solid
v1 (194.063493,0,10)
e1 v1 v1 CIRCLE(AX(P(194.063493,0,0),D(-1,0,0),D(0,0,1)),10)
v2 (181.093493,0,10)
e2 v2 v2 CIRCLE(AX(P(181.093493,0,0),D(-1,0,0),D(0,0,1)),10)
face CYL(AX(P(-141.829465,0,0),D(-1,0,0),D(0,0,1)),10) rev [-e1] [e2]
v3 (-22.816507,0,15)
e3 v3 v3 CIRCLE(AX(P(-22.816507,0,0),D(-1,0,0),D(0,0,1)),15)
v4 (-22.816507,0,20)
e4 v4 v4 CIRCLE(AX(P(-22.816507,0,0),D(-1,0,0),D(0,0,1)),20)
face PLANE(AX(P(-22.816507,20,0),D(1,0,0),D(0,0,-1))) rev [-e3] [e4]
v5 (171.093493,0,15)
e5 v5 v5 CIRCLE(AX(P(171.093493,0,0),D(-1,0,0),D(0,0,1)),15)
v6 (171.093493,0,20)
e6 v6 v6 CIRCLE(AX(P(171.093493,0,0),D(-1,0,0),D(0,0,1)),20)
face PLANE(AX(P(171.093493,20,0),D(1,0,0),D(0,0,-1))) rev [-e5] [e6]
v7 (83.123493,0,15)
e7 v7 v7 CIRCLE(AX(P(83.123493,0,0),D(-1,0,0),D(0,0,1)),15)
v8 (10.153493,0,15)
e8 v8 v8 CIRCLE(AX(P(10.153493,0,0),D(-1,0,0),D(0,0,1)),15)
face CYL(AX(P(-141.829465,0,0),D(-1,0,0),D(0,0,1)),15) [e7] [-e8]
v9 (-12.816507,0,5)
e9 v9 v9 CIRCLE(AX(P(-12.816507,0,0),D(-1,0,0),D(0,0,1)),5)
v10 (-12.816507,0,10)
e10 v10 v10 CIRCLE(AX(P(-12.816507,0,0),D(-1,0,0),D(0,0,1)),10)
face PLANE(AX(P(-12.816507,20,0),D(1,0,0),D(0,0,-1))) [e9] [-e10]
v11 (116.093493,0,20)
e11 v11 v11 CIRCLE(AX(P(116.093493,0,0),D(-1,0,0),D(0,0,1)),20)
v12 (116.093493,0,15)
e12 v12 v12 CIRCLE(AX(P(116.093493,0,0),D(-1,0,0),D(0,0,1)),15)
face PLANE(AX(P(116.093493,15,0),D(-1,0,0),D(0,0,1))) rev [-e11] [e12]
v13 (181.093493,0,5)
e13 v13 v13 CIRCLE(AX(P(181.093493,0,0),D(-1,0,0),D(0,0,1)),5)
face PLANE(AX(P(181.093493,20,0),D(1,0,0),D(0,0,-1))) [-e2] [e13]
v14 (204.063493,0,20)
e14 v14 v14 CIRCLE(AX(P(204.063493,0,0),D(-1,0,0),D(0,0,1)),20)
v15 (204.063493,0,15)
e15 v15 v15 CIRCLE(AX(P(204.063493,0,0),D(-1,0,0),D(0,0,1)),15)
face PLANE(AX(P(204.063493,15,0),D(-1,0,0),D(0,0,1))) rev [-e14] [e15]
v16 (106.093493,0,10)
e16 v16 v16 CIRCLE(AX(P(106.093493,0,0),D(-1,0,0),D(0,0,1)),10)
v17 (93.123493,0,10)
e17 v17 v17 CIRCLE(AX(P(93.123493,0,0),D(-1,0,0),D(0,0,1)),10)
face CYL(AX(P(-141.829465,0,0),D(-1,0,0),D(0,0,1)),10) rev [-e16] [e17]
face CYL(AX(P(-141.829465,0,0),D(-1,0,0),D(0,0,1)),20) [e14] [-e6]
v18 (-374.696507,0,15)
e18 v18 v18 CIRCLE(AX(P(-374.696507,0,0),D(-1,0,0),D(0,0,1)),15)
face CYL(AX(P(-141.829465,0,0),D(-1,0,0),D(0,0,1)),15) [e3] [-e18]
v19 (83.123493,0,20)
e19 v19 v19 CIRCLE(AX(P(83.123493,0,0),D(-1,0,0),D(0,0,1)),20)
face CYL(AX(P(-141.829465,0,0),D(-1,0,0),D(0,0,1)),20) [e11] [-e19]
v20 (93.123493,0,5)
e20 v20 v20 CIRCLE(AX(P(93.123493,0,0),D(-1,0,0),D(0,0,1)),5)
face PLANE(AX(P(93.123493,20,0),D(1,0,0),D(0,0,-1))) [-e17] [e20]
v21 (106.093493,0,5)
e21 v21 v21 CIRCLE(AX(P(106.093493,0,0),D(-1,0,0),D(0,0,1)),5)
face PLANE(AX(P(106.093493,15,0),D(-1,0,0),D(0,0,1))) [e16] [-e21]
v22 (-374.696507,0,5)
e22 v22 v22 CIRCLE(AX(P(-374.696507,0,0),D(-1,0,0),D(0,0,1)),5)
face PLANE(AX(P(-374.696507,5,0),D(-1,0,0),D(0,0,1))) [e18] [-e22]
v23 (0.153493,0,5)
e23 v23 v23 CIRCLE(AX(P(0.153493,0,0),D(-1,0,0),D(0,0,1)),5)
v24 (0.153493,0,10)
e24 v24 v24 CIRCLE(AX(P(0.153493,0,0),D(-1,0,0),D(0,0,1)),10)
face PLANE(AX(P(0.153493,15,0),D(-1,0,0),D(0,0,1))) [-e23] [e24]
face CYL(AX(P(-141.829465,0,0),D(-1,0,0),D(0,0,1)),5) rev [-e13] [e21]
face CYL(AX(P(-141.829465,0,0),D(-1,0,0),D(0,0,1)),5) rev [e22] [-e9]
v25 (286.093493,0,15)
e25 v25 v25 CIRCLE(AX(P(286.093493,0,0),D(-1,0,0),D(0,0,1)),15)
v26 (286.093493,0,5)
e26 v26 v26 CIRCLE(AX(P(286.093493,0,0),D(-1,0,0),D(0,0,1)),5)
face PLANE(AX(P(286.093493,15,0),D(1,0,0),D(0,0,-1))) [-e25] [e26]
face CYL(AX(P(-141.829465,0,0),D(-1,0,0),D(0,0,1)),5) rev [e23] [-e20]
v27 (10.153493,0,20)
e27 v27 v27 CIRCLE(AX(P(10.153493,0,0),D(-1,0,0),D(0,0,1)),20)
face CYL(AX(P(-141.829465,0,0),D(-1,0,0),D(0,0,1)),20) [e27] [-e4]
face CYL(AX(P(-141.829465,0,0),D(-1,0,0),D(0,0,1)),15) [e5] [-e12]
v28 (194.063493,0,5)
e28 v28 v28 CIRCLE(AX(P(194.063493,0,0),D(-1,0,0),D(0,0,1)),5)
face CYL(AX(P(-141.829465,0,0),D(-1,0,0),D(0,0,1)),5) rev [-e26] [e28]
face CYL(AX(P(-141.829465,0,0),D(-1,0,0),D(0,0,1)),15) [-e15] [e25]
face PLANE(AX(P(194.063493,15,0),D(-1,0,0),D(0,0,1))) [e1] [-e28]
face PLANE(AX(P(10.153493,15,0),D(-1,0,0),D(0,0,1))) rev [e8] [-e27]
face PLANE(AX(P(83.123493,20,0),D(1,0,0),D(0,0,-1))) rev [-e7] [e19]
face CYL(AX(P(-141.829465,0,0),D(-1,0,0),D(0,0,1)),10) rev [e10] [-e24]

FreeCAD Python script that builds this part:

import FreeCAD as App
import Part
import Sketcher

doc = App.newDocument("Part")
body = doc.addObject("PartDesign::Body", "Body")

# Sketch on XY plane
sketch1 = body.newObject("Sketcher::SketchObject", "Sketch")
sketch1.AttachmentSupport = (doc.getObject("XY_Plane"), [""])
sketch1.MapMode = "FlatFace"
sketch1.addGeometry([
    Part.LineSegment(App.Vector(286.093493, 15, 0), App.Vector(204.063493, 15, 0)),  # 0
    Part.LineSegment(App.Vector(204.063493, 15, 0), App.Vector(204.063493, 20, 0)),  # 1
    Part.LineSegment(App.Vector(204.063493, 20, 0), App.Vector(171.093493, 20, 0)),  # 2
    Part.LineSegment(App.Vector(171.093493, 20, 0), App.Vector(171.093493, 15, 0)),  # 3
    Part.LineSegment(App.Vector(171.093493, 15, 0), App.Vector(116.093493, 15, 0)),  # 4
    Part.LineSegment(App.Vector(116.093493, 15, 0), App.Vector(116.093493, 20, 0)),  # 5
    Part.LineSegment(App.Vector(116.093493, 20, 0), App.Vector(83.123493, 20, 0)),  # 6
    Part.LineSegment(App.Vector(83.123493, 20, 0), App.Vector(83.123493, 15, 0)),  # 7
    Part.LineSegment(App.Vector(83.123493, 15, 0), App.Vector(10.153493, 15, 0)),  # 8
    Part.LineSegment(App.Vector(10.153493, 15, 0), App.Vector(10.153493, 20, 0)),  # 9
    Part.LineSegment(App.Vector(10.153493, 20, 0), App.Vector(-22.816507, 20, 0)),  # 10
    Part.LineSegment(App.Vector(-22.816507, 20, 0), App.Vector(-22.816507, 15, 0)),  # 11
    Part.LineSegment(App.Vector(-22.816507, 15, 0), App.Vector(-374.696507, 15, 0)),  # 12
    Part.LineSegment(App.Vector(-374.696507, 15, 0), App.Vector(-374.696507, 5, 0)),  # 13
    Part.LineSegment(App.Vector(-374.696507, 5, 0), App.Vector(-12.816507, 5, 0)),  # 14
    Part.LineSegment(App.Vector(-12.816507, 5, 0), App.Vector(-12.816507, 10, 0)),  # 15
    Part.LineSegment(App.Vector(-12.816507, 10, 0), App.Vector(0.153493, 10, 0)),  # 16
    Part.LineSegment(App.Vector(0.153493, 10, 0), App.Vector(0.153493, 5, 0)),  # 17
    Part.LineSegment(App.Vector(0.153493, 5, 0), App.Vector(93.123493, 5, 0)),  # 18
    Part.LineSegment(App.Vector(93.123493, 5, 0), App.Vector(93.123493, 10, 0)),  # 19
    Part.LineSegment(App.Vector(93.123493, 10, 0), App.Vector(106.093493, 10, 0)),  # 20
    Part.LineSegment(App.Vector(106.093493, 10, 0), App.Vector(106.093493, 5, 0)),  # 21
    Part.LineSegment(App.Vector(106.093493, 5, 0), App.Vector(181.093493, 5, 0)),  # 22
    Part.LineSegment(App.Vector(181.093493, 5, 0), App.Vector(181.093493, 10, 0)),  # 23
    Part.LineSegment(App.Vector(181.093493, 10, 0), App.Vector(194.063493, 10, 0)),  # 24
    Part.LineSegment(App.Vector(194.063493, 10, 0), App.Vector(194.063493, 5, 0)),  # 25
    Part.LineSegment(App.Vector(194.063493, 5, 0), App.Vector(286.093493, 5, 0)),  # 26
    Part.LineSegment(App.Vector(286.093493, 5, 0), App.Vector(286.093493, 15, 0)),  # 27
], False)
sketch1.addConstraint([
    Sketcher.Constraint("Coincident", 0, 2, 1, 1),
    Sketcher.Constraint("Coincident", 1, 2, 2, 1),
    Sketcher.Constraint("Coincident", 2, 2, 3, 1),
    Sketcher.Constraint("Coincident", 3, 2, 4, 1),
    Sketcher.Constraint("Coincident", 4, 2, 5, 1),
    Sketcher.Constraint("Coincident", 5, 2, 6, 1),
    Sketcher.Constraint("Coincident", 6, 2, 7, 1),
    Sketcher.Constraint("Coincident", 7, 2, 8, 1),
    Sketcher.Constraint("Coincident", 8, 2, 9, 1),
    Sketcher.Constraint("Coincident", 9, 2, 10, 1),
    Sketcher.Constraint("Coincident", 10, 2, 11, 1),
    Sketcher.Constraint("Coincident", 11, 2, 12, 1),
    Sketcher.Constraint("Coincident", 12, 2, 13, 1),
    Sketcher.Constraint("Coincident", 13, 2, 14, 1),
    Sketcher.Constraint("Coincident", 14, 2, 15, 1),
    Sketcher.Constraint("Coincident", 15, 2, 16, 1),
    Sketcher.Constraint("Coincident", 16, 2, 17, 1),
    Sketcher.Constraint("Coincident", 17, 2, 18, 1),
    Sketcher.Constraint("Coincident", 18, 2, 19, 1),
    Sketcher.Constraint("Coincident", 19, 2, 20, 1),
    Sketcher.Constraint("Coincident", 20, 2, 21, 1),
    Sketcher.Constraint("Coincident", 21, 2, 22, 1),
    Sketcher.Constraint("Coincident", 22, 2, 23, 1),
    Sketcher.Constraint("Coincident", 23, 2, 24, 1),
    Sketcher.Constraint("Coincident", 24, 2, 25, 1),
    Sketcher.Constraint("Coincident", 25, 2, 26, 1),
    Sketcher.Constraint("Coincident", 26, 2, 27, 1),
    Sketcher.Constraint("Coincident", 27, 2, 0, 1),
    Sketcher.Constraint("Horizontal", 0),
    Sketcher.Constraint("Vertical", 1),
    Sketcher.Constraint("Horizontal", 2),
    Sketcher.Constraint("Vertical", 3),
    Sketcher.Constraint("Horizontal", 4),
    Sketcher.Constraint("Vertical", 5),
    Sketcher.Constraint("Horizontal", 6),
    Sketcher.Constraint("Vertical", 7),
    Sketcher.Constraint("Horizontal", 8),
    Sketcher.Constraint("Vertical", 9),
    Sketcher.Constraint("Horizontal", 10),
    Sketcher.Constraint("Vertical", 11),
    Sketcher.Constraint("Horizontal", 12),
    Sketcher.Constraint("Vertical", 13),
    Sketcher.Constraint("Horizontal", 14),
    Sketcher.Constraint("Vertical", 15),
    Sketcher.Constraint("Horizontal", 16),
    Sketcher.Constraint("Vertical", 17),
    Sketcher.Constraint("Horizontal", 18),
    Sketcher.Constraint("Vertical", 19),
    Sketcher.Constraint("Horizontal", 20),
    Sketcher.Constraint("Vertical", 21),
    Sketcher.Constraint("Horizontal", 22),
    Sketcher.Constraint("Vertical", 23),
    Sketcher.Constraint("Horizontal", 24),
    Sketcher.Constraint("Vertical", 25),
    Sketcher.Constraint("Horizontal", 26),
    Sketcher.Constraint("Vertical", 27),
    Sketcher.Constraint("Horizontal", 0, 2, 3, 2),
    Sketcher.Constraint("Horizontal", 2, 2, 5, 2),
    Sketcher.Constraint("Horizontal", 4, 2, 7, 2),
    Sketcher.Constraint("Horizontal", 6, 2, 9, 2),
    Sketcher.Constraint("Horizontal", 8, 2, 11, 2),
    Sketcher.Constraint("Horizontal", 14, 2, 17, 2),
    Sketcher.Constraint("Horizontal", 16, 2, 19, 2),
    Sketcher.Constraint("Horizontal", 18, 2, 21, 2),
    Sketcher.Constraint("Horizontal", 20, 2, 23, 2),
    Sketcher.Constraint("Horizontal", 22, 2, 25, 2),
    Sketcher.Constraint("Equal", 2, 6),
    Sketcher.Constraint("Equal", 6, 10),
    Sketcher.Constraint("Equal", 16, 20),
    Sketcher.Constraint("Equal", 20, 24),
    Sketcher.Constraint("Equal", 11, 15),
    Sketcher.Constraint("DistanceX", 4, 2, 4, 1, 55.0),
    Sketcher.Constraint("DistanceX", 22, 1, 22, 2, 75.0),
    Sketcher.Constraint("DistanceY", 1, 1, 1, 2, 5.0),
    Sketcher.Constraint("DistanceY", 13, 2, 13, 1, 10.0),
    Sketcher.Constraint("DistanceY", -1, 1, 0, 2, 15.0),
    Sketcher.Constraint("DistanceX", 11, 2, 14, 2, 10.0),
    Sketcher.Constraint("DistanceX", 16, 2, 8, 2, 10.0),
    Sketcher.Constraint("DistanceX", 7, 2, 18, 2, 10.0),
    Sketcher.Constraint("DistanceX", 22, 2, 26, 2, 105.0),
    Sketcher.Constraint("DistanceX", 0, 2, 0, 1, 82.03),
    Sketcher.Constraint("DistanceX", 8, 2, 8, 1, 72.97),
    Sketcher.Constraint("DistanceX", 12, 2, 12, 1, 351.88),
    Sketcher.Constraint("DistanceX", -1, 1, 0, 2, 204.063493),
])
revolution = body.newObject("PartDesign::Revolution", "Revolution")
revolution.Profile = sketch1
revolution.ReferenceAxis = (sketch1, ["H_Axis"])
revolution.Angle = 360

doc.recompute()
